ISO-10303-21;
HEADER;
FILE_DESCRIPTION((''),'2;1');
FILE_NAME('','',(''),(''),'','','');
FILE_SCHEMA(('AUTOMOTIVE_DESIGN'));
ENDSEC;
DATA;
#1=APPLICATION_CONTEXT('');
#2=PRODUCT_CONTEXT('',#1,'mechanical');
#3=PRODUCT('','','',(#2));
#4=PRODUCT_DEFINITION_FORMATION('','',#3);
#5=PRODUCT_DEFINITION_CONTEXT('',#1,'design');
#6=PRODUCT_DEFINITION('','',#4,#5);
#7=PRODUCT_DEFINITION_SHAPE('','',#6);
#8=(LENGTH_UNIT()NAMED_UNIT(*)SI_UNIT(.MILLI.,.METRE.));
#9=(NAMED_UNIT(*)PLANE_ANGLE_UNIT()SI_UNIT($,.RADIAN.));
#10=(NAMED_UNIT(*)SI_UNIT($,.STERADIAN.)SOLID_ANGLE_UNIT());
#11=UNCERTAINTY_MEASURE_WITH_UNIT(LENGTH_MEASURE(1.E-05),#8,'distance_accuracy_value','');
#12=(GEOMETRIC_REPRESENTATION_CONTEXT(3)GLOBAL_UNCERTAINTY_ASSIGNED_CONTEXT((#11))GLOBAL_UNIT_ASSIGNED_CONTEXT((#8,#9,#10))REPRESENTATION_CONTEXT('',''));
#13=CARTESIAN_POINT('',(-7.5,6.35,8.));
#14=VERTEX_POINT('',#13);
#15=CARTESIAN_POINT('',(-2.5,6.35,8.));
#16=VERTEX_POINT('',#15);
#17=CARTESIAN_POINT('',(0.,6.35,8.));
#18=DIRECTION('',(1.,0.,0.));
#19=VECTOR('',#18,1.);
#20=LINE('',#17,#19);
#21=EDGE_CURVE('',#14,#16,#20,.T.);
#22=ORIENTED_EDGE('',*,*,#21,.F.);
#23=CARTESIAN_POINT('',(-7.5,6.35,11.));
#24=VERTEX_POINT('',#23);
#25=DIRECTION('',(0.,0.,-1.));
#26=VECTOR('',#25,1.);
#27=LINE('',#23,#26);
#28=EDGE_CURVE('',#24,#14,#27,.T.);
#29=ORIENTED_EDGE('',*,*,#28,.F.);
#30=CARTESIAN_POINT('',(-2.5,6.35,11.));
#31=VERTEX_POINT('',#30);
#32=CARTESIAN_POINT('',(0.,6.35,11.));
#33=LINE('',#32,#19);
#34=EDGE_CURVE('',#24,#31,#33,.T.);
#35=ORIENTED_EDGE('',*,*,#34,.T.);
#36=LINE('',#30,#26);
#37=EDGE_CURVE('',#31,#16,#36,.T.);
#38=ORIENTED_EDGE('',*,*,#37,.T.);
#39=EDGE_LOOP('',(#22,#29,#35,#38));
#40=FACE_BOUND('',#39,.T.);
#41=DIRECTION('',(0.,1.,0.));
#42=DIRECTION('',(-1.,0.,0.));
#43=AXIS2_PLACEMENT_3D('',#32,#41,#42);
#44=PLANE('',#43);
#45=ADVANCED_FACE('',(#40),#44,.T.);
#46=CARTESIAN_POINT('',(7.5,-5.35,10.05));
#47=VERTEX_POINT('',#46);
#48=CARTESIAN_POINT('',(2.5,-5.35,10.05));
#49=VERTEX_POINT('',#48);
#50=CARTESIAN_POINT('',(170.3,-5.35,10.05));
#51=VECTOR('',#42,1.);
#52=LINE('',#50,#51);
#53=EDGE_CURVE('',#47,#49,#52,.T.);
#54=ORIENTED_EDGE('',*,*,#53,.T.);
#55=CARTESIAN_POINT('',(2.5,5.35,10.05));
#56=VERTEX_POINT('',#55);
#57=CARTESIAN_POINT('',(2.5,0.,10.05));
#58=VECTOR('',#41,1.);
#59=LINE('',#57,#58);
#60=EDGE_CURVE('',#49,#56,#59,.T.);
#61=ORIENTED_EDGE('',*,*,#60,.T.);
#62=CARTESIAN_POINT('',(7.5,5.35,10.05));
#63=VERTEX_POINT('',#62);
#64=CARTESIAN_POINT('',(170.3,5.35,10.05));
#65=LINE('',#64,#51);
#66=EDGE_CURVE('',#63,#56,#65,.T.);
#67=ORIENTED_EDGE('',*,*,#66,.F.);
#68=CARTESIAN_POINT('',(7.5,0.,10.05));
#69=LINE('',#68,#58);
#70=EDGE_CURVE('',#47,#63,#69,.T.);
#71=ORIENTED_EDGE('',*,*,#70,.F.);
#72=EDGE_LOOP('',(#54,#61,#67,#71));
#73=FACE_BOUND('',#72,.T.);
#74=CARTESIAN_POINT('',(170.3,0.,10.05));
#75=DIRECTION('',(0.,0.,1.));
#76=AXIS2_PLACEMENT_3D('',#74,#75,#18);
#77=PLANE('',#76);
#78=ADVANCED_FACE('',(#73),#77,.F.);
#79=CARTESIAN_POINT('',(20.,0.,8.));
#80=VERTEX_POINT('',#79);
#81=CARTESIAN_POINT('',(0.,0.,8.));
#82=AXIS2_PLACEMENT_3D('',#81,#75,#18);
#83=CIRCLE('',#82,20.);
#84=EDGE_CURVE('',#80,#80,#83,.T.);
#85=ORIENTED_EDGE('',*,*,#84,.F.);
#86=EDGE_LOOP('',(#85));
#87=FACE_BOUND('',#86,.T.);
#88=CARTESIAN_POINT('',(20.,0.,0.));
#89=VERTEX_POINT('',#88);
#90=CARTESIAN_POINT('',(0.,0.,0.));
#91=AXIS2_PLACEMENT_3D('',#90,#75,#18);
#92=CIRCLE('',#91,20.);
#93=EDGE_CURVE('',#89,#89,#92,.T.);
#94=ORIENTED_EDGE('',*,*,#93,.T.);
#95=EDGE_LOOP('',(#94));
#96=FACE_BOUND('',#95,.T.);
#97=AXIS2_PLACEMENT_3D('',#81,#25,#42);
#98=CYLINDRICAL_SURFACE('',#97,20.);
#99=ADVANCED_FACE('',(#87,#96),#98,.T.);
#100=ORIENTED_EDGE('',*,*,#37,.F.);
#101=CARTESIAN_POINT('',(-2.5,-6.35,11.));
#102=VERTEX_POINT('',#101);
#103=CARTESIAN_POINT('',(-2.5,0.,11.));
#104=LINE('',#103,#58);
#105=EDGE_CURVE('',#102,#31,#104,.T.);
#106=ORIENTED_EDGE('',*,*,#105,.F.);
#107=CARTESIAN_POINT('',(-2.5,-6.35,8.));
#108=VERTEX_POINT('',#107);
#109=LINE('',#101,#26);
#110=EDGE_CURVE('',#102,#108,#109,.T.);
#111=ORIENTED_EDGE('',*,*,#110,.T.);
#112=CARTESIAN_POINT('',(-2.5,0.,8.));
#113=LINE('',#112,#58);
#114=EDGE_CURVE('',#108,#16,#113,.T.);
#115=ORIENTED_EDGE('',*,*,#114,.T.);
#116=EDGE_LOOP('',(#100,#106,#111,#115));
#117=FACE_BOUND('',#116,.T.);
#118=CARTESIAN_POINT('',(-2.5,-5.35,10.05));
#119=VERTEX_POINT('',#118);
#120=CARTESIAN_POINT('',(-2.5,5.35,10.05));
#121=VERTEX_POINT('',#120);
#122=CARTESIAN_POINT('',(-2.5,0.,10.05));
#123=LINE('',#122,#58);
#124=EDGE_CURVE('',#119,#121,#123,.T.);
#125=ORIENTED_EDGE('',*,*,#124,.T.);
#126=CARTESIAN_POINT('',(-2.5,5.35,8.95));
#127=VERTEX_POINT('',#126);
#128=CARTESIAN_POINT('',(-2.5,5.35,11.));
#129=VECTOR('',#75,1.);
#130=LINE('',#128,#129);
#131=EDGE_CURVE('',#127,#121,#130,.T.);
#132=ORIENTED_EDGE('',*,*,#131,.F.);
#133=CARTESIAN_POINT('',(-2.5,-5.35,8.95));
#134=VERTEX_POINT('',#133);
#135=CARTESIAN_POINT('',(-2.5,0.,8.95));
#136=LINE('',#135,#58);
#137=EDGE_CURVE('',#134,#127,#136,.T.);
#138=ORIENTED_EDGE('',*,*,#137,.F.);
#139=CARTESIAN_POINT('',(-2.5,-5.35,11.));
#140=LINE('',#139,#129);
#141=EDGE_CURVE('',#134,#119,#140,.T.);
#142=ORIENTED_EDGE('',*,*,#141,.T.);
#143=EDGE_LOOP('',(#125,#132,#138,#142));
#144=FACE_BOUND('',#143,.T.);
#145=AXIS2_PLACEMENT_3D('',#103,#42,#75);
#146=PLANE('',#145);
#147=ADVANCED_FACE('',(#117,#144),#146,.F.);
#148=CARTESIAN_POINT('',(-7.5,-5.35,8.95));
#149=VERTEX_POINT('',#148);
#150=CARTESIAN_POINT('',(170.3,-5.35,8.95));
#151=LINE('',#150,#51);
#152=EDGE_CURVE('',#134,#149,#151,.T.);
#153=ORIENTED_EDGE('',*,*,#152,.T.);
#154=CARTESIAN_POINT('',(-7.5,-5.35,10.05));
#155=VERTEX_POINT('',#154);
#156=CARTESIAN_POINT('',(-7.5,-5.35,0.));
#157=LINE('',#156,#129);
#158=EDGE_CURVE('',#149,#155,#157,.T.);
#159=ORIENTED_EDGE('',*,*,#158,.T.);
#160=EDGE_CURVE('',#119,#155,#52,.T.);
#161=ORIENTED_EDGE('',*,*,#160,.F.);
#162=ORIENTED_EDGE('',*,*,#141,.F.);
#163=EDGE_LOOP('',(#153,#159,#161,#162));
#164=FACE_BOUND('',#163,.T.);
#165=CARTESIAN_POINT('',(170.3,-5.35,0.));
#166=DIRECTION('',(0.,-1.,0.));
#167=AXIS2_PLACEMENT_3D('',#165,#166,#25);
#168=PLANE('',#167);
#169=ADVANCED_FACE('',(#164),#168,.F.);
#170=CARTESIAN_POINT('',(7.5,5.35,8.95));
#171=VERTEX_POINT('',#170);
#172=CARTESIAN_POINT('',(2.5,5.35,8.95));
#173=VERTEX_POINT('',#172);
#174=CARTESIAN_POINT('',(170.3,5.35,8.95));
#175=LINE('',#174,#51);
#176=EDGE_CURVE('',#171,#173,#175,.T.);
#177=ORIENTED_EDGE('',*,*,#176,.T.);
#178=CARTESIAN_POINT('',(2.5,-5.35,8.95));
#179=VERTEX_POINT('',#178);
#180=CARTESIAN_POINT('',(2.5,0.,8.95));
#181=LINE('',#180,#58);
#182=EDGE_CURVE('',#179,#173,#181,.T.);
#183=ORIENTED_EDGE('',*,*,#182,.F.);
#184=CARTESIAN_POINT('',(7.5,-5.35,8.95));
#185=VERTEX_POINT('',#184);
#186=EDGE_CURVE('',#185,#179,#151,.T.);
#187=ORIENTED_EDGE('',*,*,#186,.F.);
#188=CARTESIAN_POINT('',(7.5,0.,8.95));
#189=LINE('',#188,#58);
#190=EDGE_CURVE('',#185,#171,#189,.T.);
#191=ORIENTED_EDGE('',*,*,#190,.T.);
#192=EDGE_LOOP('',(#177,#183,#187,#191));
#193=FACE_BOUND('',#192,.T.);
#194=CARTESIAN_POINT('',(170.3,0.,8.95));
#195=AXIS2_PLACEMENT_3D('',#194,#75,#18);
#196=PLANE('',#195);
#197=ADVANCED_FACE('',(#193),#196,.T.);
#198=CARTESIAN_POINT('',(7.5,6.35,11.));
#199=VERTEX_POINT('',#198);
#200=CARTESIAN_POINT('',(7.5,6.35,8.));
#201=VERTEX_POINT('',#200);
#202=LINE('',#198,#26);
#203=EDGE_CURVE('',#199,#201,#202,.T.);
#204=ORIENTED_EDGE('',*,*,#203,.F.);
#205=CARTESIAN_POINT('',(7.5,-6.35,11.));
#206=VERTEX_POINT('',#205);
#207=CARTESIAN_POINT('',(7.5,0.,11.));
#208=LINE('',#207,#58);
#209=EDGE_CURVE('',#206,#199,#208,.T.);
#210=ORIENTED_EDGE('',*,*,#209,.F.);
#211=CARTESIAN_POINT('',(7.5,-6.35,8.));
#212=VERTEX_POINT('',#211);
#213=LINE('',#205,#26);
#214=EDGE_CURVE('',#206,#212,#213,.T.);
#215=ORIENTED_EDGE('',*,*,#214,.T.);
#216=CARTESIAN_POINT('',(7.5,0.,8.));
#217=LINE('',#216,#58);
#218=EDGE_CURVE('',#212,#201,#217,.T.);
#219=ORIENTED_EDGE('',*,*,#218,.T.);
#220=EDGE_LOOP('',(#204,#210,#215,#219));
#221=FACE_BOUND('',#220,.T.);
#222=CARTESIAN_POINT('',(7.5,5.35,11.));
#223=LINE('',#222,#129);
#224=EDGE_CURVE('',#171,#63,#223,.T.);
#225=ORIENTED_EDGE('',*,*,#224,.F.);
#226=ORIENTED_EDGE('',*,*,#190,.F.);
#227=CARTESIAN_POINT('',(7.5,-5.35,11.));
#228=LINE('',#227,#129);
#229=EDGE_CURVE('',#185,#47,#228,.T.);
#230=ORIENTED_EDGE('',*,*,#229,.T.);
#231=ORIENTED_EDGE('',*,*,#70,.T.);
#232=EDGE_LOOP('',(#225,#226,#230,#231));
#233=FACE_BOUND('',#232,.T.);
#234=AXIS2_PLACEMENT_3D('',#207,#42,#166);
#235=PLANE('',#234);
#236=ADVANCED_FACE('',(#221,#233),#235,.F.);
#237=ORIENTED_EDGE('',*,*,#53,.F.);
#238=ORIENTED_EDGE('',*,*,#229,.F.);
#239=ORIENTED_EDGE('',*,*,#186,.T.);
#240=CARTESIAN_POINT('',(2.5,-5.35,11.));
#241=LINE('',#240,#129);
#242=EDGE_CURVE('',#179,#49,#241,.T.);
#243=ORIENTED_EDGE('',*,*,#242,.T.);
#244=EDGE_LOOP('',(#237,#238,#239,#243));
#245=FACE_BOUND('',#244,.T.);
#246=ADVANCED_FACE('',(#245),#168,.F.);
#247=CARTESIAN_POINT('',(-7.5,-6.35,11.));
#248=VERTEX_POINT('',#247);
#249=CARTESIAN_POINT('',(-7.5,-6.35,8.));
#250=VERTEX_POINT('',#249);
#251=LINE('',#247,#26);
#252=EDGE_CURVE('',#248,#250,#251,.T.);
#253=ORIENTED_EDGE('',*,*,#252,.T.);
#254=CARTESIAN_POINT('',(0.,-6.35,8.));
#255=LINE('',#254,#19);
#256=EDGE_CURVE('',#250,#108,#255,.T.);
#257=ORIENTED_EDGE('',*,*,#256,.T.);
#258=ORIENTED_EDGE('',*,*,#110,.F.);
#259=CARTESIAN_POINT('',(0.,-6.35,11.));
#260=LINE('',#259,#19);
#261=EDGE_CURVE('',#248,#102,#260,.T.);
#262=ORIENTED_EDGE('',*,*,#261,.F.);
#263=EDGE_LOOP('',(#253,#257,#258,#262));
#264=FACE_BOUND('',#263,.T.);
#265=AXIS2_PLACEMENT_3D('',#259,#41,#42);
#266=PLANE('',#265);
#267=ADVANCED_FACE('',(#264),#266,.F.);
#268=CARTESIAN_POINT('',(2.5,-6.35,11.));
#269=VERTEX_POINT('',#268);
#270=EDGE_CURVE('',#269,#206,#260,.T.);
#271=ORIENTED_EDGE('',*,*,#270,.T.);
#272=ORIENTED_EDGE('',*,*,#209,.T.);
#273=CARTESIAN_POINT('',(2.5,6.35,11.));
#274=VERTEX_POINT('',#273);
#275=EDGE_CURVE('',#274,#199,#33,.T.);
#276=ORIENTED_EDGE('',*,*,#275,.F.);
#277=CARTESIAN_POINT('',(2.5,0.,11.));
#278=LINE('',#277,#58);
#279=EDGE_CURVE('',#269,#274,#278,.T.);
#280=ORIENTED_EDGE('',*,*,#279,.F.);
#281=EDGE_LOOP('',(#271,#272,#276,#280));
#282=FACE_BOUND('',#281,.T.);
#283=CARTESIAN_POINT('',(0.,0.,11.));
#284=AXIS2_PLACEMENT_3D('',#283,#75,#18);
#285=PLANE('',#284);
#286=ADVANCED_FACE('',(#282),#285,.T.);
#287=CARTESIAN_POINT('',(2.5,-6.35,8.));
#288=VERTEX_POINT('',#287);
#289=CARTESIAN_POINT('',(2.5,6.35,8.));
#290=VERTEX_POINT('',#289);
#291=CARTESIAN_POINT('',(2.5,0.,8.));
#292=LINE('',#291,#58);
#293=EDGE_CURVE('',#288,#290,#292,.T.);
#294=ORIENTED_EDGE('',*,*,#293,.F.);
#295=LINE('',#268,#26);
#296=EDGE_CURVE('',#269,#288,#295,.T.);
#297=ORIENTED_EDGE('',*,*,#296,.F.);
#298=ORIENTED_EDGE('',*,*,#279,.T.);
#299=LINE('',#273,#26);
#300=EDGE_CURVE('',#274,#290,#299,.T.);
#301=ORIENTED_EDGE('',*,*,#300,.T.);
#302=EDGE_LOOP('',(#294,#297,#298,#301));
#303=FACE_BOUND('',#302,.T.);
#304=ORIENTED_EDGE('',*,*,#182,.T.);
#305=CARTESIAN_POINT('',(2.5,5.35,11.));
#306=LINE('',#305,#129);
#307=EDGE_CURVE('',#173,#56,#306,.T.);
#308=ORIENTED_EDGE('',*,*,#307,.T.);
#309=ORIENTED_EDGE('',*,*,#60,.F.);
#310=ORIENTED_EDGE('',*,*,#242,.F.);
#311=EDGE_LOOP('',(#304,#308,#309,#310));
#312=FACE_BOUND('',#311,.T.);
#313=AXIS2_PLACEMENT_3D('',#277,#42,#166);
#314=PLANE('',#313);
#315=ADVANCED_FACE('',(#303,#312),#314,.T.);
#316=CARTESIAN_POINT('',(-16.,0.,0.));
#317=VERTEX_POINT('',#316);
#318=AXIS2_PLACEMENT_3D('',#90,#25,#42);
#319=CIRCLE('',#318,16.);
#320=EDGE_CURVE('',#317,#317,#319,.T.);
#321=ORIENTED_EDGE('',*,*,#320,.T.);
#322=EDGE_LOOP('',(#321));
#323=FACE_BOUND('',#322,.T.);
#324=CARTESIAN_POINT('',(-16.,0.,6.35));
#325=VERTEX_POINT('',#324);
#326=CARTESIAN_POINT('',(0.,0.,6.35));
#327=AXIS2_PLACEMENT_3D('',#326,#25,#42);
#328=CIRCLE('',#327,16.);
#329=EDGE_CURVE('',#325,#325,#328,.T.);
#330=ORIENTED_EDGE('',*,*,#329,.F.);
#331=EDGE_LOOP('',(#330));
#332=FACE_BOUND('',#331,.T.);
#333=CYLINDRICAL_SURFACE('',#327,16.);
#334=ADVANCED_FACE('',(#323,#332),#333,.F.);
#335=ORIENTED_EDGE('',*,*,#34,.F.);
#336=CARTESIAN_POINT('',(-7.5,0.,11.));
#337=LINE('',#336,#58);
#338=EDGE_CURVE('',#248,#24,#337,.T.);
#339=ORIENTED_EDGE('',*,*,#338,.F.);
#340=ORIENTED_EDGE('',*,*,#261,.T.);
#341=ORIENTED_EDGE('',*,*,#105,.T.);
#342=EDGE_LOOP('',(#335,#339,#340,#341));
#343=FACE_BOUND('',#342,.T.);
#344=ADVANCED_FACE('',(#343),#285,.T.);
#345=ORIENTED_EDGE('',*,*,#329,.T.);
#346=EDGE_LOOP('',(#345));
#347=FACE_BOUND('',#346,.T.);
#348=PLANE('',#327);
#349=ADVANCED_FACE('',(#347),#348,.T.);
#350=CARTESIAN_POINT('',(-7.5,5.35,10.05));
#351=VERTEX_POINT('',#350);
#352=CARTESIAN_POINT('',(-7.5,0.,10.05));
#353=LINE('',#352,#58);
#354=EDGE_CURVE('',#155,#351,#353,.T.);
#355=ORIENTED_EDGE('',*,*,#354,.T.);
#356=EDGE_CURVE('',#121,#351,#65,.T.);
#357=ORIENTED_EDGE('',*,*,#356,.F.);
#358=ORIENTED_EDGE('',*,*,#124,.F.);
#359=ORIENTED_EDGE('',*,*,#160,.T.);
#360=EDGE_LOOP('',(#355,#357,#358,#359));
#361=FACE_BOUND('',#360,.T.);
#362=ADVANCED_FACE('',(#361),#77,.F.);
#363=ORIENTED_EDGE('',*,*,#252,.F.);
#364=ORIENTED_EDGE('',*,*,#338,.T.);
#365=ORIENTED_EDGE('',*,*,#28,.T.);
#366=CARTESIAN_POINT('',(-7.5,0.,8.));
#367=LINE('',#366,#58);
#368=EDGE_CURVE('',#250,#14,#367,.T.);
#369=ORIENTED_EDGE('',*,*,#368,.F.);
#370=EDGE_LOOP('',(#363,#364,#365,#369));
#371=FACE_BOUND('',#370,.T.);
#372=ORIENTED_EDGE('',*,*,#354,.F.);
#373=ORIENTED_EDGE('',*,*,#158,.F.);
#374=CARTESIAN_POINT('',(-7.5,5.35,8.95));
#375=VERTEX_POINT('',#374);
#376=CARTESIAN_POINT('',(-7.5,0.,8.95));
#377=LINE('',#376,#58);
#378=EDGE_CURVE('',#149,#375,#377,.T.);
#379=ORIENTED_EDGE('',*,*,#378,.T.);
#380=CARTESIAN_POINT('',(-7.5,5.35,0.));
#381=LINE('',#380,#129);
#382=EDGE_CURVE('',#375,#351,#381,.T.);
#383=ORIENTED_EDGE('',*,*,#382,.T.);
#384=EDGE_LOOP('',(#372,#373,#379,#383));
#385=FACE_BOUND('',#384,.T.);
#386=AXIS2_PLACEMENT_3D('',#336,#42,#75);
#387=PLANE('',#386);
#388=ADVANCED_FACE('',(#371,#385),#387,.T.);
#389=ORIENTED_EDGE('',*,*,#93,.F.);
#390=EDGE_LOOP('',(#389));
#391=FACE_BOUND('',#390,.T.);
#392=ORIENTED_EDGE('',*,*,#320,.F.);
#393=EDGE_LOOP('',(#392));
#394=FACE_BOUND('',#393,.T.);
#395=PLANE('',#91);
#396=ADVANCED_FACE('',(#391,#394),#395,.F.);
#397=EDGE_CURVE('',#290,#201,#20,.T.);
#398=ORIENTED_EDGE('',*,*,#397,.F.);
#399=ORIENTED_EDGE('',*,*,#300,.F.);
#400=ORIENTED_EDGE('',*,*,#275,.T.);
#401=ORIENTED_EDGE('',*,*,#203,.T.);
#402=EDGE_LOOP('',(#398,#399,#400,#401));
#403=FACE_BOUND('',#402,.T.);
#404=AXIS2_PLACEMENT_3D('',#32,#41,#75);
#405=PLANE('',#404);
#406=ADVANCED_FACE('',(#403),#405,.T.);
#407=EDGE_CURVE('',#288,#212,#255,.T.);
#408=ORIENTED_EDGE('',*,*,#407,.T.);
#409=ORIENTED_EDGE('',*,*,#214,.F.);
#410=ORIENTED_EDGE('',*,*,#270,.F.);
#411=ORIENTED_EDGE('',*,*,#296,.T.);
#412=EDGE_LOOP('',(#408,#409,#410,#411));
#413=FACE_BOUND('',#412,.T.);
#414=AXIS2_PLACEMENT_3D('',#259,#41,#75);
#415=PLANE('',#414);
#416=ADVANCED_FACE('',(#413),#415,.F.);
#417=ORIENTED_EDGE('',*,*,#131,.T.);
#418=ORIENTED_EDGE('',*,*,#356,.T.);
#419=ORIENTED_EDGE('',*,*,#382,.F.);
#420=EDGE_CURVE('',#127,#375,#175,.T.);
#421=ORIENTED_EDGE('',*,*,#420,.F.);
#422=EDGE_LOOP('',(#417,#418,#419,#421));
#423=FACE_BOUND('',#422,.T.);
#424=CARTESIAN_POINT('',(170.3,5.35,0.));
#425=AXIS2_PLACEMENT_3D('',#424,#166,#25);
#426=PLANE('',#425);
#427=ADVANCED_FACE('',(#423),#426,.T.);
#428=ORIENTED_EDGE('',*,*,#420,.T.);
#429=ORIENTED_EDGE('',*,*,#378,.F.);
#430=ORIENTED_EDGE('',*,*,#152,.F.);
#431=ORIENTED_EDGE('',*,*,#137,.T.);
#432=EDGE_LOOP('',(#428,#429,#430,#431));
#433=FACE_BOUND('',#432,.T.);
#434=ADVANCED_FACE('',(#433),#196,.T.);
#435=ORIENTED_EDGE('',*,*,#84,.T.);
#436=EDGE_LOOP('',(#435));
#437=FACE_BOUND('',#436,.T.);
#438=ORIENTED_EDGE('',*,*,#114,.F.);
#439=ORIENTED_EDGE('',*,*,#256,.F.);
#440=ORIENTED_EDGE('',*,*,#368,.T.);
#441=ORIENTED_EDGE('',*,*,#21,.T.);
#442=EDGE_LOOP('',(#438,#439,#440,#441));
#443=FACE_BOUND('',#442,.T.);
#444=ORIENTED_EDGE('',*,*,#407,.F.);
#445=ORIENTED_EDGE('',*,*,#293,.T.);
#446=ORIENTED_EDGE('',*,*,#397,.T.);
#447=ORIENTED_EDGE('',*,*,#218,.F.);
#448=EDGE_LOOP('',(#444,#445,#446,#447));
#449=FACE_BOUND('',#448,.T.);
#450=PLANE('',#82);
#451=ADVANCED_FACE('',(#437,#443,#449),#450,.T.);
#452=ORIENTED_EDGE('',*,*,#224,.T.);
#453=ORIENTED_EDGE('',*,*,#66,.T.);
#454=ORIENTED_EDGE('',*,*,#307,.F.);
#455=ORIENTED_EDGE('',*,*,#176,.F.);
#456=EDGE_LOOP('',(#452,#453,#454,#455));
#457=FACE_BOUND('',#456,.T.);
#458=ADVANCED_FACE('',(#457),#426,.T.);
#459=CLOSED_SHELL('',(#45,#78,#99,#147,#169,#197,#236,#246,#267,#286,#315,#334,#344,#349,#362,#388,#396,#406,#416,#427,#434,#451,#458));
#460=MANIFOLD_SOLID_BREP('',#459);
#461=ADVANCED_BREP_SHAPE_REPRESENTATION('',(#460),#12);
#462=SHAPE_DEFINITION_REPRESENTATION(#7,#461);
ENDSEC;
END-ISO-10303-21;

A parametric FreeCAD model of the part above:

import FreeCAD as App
import Part
import Sketcher


def add_polygon(sketch, points):
    """Adds a closed chain of lines whose ends are joined by coincident constraints."""
    first, n = sketch.GeometryCount, len(points)
    for a, b in zip(points, points[1:] + points[:1]):
        sketch.addGeometry(Part.LineSegment(App.Vector(*a, 0), App.Vector(*b, 0)), False)
    for i in range(n):
        sketch.addConstraint(Sketcher.Constraint("Coincident", first + i, 2, first + (i + 1) % n, 1))

doc = App.newDocument("Part")
params = doc.addObject("Spreadsheet::Sheet", "Params")
for row, (alias, value) in enumerate([
    ("sketch1_diameter", "40 mm"),
    ("pad1_length", "8 mm"),
    ("sketch2_diameter", "32 mm"),
    ("pocket1_length", "6.35 mm"),
    ("sketch3_width", "5 mm"),
    ("sketch3_height", "12.7 mm"),
    ("pad2_length", "3 mm"),
    ("sketch4_width", "10.7 mm"),
    ("sketch4_height", "1.1 mm"),
    ("pocket2_length", "177.8 mm"),
], start=1):
    params.set(f"A{row}", alias)
    params.set(f"B{row}", "=" + value)
    params.setAlias(f"B{row}", alias)

body = doc.addObject("PartDesign::Body", "Body")

# Sketch on XY plane
sketch1 = body.newObject("Sketcher::SketchObject", "Sketch")
sketch1.AttachmentSupport = (doc.getObject("XY_Plane"), [""])
sketch1.MapMode = "FlatFace"
sketch1.addGeometry(Part.Circle(App.Vector(0, 0, 0), App.Vector(0, 0, 1), 20), False)
sketch1.addConstraint(Sketcher.Constraint("Coincident", 0, 3, -1, 1))
sketch1.addConstraint(Sketcher.Constraint("Diameter", 0, 40.0))
sketch1.setExpression("Constraints[1]", "Params.sketch1_diameter")
pad1 = body.newObject("PartDesign::Pad", "Pad")
pad1.Profile = sketch1
pad1.setExpression("Length", "Params.pad1_length")

# Sketch on XY plane
sketch2 = body.newObject("Sketcher::SketchObject", "Sketch001")
sketch2.AttachmentSupport = (doc.getObject("XY_Plane"), [""])
sketch2.MapMode = "FlatFace"
sketch2.addGeometry(Part.Circle(App.Vector(0, 0, 0), App.Vector(0, 0, 1), 16), False)
sketch2.addConstraint(Sketcher.Constraint("Coincident", 0, 3, -1, 1))
sketch2.addConstraint(Sketcher.Constraint("Diameter", 0, 32.0))
sketch2.setExpression("Constraints[1]", "Params.sketch2_diameter")
pocket1 = body.newObject("PartDesign::Pocket", "Pocket")
pocket1.Profile = sketch2
pocket1.setExpression("Length", "Params.pocket1_length")
pocket1.Reversed = True

# Sketch on XY plane
sketch3 = body.newObject("Sketcher::SketchObject", "Sketch002")
sketch3.AttachmentSupport = (doc.getObject("XY_Plane"), [""])
sketch3.MapMode = "FlatFace"
sketch3.AttachmentOffset = App.Placement(App.Vector(0, 0, 8), App.Rotation())
add_polygon(sketch3, [(-7.5, -6.35), (-2.5, -6.35), (-2.5, 6.35), (-7.5, 6.35)])  # lines 0-3
add_polygon(sketch3, [(2.5, 6.35), (2.5, -6.35), (7.5, -6.35), (7.5, 6.35)])  # lines 4-7
sketch3.addConstraint(Sketcher.Constraint("Horizontal", 0))
sketch3.addConstraint(Sketcher.Constraint("Vertical", 1))
sketch3.addConstraint(Sketcher.Constraint("Horizontal", 2))
sketch3.addConstraint(Sketcher.Constraint("Vertical", 3))
sketch3.addConstraint(Sketcher.Constraint("Vertical", 4))
sketch3.addConstraint(Sketcher.Constraint("Horizontal", 5))
sketch3.addConstraint(Sketcher.Constraint("Vertical", 6))
sketch3.addConstraint(Sketcher.Constraint("Horizontal", 7))
sketch3.addConstraint(Sketcher.Constraint("Symmetric", 1, 2, 4, 2, -1, 1))
sketch3.addConstraint(Sketcher.Constraint("Symmetric", 3, 2, 6, 2, -1, 1))
sketch3.addConstraint(Sketcher.Constraint("Horizontal", 3, 2, 4, 2))
sketch3.addConstraint(Sketcher.Constraint("DistanceX", 0, 1, 0, 2, 5.0))
sketch3.addConstraint(Sketcher.Constraint("DistanceY", 1, 1, 1, 2, 12.7))
sketch3.addConstraint(Sketcher.Constraint("DistanceX", 0, 2, 4, 2, 5.0))
sketch3.setExpression("Constraints[19]", "Params.sketch3_width")
sketch3.setExpression("Constraints[20]", "Params.sketch3_height")
pad2 = body.newObject("PartDesign::Pad", "Pad001")
pad2.Profile = sketch3
pad2.setExpression("Length", "Params.pad2_length")

# Sketch on YZ plane
sketch4 = body.newObject("Sketcher::SketchObject", "Sketch003")
sketch4.AttachmentSupport = (doc.getObject("YZ_Plane"), [""])
sketch4.MapMode = "FlatFace"
sketch4.AttachmentOffset = App.Placement(App.Vector(0, 0, -7.5), App.Rotation())
add_polygon(sketch4, [(-5.35, 10.05), (5.35, 10.05), (5.35, 8.95), (-5.35, 8.95)])  # lines 0-3
sketch4.addConstraint(Sketcher.Constraint("Horizontal", 0))
sketch4.addConstraint(Sketcher.Constraint("Vertical", 1))
sketch4.addConstraint(Sketcher.Constraint("Horizontal", 2))
sketch4.addConstraint(Sketcher.Constraint("Vertical", 3))
sketch4.addConstraint(Sketcher.Constraint("DistanceX", 0, 1, 0, 2, 10.7))
sketch4.addConstraint(Sketcher.Constraint("DistanceY", 1, 2, 1, 1, 1.1))
sketch4.addConstraint(Sketcher.Constraint("DistanceX", -1, 1, 0, 2, 5.35))
sketch4.addConstraint(Sketcher.Constraint("DistanceY", -1, 1, 0, 2, 10.05))
sketch4.setExpression("Constraints[8]", "Params.sketch4_width")
sketch4.setExpression("Constraints[9]", "Params.sketch4_height")
pocket2 = body.newObject("PartDesign::Pocket", "Pocket001")
pocket2.Profile = sketch4
pocket2.setExpression("Length", "Params.pocket2_length")
pocket2.Reversed = True

doc.recompute()
